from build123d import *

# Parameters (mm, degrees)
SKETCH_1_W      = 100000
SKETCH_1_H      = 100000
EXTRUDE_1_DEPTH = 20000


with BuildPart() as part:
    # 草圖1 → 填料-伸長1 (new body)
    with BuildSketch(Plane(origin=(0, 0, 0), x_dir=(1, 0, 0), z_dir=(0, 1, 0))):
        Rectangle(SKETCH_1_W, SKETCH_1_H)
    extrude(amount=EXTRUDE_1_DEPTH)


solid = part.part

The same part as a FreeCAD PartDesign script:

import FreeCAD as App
import Part
import Sketcher

V = App.Vector
Q = App.Units.Quantity


def add_polygon(sketch, points):
    """Adds a closed chain of lines whose ends are joined by coincident constraints."""
    first, n = sketch.GeometryCount, len(points)
    for a, b in zip(points, points[1:] + points[:1]):
        sketch.addGeometry(Part.LineSegment(App.Vector(*a, 0), App.Vector(*b, 0)), False)
    for i in range(n):
        sketch.addConstraint(Sketcher.Constraint("Coincident", first + i, 2, first + (i + 1) % n, 1))

doc = App.newDocument("Part")
body = doc.addObject("PartDesign::Body", "Body")

# Sketch on XZ plane
sketch1 = body.newObject("Sketcher::SketchObject", "Sketch")
sketch1.AttachmentSupport = (doc.getObject("XZ_Plane"), [""])
sketch1.MapMode = "FlatFace"
add_polygon(sketch1, [(-50000, -50000), (-50000, 50000), (50000, 50000), (50000, -50000)])  # lines 0-3
sketch1.addConstraint(Sketcher.Constraint("Vertical", 0))
sketch1.addConstraint(Sketcher.Constraint("Horizontal", 1))
sketch1.addConstraint(Sketcher.Constraint("Vertical", 2))
sketch1.addConstraint(Sketcher.Constraint("Horizontal", 3))
sketch1.addConstraint(Sketcher.Constraint("Symmetric", 0, 2, 2, 2, -1, 1))
sketch1.addConstraint(Sketcher.Constraint("Equal", 3, 0))
sketch1.addConstraint(Sketcher.Constraint("DistanceX", 1, 1, 1, 2, Q("100000 mm")))
pad1 = body.newObject("PartDesign::Pad", "Pad")
pad1.Profile = sketch1
pad1.Length = 20000
pad1.Reversed = True

doc.recompute()
